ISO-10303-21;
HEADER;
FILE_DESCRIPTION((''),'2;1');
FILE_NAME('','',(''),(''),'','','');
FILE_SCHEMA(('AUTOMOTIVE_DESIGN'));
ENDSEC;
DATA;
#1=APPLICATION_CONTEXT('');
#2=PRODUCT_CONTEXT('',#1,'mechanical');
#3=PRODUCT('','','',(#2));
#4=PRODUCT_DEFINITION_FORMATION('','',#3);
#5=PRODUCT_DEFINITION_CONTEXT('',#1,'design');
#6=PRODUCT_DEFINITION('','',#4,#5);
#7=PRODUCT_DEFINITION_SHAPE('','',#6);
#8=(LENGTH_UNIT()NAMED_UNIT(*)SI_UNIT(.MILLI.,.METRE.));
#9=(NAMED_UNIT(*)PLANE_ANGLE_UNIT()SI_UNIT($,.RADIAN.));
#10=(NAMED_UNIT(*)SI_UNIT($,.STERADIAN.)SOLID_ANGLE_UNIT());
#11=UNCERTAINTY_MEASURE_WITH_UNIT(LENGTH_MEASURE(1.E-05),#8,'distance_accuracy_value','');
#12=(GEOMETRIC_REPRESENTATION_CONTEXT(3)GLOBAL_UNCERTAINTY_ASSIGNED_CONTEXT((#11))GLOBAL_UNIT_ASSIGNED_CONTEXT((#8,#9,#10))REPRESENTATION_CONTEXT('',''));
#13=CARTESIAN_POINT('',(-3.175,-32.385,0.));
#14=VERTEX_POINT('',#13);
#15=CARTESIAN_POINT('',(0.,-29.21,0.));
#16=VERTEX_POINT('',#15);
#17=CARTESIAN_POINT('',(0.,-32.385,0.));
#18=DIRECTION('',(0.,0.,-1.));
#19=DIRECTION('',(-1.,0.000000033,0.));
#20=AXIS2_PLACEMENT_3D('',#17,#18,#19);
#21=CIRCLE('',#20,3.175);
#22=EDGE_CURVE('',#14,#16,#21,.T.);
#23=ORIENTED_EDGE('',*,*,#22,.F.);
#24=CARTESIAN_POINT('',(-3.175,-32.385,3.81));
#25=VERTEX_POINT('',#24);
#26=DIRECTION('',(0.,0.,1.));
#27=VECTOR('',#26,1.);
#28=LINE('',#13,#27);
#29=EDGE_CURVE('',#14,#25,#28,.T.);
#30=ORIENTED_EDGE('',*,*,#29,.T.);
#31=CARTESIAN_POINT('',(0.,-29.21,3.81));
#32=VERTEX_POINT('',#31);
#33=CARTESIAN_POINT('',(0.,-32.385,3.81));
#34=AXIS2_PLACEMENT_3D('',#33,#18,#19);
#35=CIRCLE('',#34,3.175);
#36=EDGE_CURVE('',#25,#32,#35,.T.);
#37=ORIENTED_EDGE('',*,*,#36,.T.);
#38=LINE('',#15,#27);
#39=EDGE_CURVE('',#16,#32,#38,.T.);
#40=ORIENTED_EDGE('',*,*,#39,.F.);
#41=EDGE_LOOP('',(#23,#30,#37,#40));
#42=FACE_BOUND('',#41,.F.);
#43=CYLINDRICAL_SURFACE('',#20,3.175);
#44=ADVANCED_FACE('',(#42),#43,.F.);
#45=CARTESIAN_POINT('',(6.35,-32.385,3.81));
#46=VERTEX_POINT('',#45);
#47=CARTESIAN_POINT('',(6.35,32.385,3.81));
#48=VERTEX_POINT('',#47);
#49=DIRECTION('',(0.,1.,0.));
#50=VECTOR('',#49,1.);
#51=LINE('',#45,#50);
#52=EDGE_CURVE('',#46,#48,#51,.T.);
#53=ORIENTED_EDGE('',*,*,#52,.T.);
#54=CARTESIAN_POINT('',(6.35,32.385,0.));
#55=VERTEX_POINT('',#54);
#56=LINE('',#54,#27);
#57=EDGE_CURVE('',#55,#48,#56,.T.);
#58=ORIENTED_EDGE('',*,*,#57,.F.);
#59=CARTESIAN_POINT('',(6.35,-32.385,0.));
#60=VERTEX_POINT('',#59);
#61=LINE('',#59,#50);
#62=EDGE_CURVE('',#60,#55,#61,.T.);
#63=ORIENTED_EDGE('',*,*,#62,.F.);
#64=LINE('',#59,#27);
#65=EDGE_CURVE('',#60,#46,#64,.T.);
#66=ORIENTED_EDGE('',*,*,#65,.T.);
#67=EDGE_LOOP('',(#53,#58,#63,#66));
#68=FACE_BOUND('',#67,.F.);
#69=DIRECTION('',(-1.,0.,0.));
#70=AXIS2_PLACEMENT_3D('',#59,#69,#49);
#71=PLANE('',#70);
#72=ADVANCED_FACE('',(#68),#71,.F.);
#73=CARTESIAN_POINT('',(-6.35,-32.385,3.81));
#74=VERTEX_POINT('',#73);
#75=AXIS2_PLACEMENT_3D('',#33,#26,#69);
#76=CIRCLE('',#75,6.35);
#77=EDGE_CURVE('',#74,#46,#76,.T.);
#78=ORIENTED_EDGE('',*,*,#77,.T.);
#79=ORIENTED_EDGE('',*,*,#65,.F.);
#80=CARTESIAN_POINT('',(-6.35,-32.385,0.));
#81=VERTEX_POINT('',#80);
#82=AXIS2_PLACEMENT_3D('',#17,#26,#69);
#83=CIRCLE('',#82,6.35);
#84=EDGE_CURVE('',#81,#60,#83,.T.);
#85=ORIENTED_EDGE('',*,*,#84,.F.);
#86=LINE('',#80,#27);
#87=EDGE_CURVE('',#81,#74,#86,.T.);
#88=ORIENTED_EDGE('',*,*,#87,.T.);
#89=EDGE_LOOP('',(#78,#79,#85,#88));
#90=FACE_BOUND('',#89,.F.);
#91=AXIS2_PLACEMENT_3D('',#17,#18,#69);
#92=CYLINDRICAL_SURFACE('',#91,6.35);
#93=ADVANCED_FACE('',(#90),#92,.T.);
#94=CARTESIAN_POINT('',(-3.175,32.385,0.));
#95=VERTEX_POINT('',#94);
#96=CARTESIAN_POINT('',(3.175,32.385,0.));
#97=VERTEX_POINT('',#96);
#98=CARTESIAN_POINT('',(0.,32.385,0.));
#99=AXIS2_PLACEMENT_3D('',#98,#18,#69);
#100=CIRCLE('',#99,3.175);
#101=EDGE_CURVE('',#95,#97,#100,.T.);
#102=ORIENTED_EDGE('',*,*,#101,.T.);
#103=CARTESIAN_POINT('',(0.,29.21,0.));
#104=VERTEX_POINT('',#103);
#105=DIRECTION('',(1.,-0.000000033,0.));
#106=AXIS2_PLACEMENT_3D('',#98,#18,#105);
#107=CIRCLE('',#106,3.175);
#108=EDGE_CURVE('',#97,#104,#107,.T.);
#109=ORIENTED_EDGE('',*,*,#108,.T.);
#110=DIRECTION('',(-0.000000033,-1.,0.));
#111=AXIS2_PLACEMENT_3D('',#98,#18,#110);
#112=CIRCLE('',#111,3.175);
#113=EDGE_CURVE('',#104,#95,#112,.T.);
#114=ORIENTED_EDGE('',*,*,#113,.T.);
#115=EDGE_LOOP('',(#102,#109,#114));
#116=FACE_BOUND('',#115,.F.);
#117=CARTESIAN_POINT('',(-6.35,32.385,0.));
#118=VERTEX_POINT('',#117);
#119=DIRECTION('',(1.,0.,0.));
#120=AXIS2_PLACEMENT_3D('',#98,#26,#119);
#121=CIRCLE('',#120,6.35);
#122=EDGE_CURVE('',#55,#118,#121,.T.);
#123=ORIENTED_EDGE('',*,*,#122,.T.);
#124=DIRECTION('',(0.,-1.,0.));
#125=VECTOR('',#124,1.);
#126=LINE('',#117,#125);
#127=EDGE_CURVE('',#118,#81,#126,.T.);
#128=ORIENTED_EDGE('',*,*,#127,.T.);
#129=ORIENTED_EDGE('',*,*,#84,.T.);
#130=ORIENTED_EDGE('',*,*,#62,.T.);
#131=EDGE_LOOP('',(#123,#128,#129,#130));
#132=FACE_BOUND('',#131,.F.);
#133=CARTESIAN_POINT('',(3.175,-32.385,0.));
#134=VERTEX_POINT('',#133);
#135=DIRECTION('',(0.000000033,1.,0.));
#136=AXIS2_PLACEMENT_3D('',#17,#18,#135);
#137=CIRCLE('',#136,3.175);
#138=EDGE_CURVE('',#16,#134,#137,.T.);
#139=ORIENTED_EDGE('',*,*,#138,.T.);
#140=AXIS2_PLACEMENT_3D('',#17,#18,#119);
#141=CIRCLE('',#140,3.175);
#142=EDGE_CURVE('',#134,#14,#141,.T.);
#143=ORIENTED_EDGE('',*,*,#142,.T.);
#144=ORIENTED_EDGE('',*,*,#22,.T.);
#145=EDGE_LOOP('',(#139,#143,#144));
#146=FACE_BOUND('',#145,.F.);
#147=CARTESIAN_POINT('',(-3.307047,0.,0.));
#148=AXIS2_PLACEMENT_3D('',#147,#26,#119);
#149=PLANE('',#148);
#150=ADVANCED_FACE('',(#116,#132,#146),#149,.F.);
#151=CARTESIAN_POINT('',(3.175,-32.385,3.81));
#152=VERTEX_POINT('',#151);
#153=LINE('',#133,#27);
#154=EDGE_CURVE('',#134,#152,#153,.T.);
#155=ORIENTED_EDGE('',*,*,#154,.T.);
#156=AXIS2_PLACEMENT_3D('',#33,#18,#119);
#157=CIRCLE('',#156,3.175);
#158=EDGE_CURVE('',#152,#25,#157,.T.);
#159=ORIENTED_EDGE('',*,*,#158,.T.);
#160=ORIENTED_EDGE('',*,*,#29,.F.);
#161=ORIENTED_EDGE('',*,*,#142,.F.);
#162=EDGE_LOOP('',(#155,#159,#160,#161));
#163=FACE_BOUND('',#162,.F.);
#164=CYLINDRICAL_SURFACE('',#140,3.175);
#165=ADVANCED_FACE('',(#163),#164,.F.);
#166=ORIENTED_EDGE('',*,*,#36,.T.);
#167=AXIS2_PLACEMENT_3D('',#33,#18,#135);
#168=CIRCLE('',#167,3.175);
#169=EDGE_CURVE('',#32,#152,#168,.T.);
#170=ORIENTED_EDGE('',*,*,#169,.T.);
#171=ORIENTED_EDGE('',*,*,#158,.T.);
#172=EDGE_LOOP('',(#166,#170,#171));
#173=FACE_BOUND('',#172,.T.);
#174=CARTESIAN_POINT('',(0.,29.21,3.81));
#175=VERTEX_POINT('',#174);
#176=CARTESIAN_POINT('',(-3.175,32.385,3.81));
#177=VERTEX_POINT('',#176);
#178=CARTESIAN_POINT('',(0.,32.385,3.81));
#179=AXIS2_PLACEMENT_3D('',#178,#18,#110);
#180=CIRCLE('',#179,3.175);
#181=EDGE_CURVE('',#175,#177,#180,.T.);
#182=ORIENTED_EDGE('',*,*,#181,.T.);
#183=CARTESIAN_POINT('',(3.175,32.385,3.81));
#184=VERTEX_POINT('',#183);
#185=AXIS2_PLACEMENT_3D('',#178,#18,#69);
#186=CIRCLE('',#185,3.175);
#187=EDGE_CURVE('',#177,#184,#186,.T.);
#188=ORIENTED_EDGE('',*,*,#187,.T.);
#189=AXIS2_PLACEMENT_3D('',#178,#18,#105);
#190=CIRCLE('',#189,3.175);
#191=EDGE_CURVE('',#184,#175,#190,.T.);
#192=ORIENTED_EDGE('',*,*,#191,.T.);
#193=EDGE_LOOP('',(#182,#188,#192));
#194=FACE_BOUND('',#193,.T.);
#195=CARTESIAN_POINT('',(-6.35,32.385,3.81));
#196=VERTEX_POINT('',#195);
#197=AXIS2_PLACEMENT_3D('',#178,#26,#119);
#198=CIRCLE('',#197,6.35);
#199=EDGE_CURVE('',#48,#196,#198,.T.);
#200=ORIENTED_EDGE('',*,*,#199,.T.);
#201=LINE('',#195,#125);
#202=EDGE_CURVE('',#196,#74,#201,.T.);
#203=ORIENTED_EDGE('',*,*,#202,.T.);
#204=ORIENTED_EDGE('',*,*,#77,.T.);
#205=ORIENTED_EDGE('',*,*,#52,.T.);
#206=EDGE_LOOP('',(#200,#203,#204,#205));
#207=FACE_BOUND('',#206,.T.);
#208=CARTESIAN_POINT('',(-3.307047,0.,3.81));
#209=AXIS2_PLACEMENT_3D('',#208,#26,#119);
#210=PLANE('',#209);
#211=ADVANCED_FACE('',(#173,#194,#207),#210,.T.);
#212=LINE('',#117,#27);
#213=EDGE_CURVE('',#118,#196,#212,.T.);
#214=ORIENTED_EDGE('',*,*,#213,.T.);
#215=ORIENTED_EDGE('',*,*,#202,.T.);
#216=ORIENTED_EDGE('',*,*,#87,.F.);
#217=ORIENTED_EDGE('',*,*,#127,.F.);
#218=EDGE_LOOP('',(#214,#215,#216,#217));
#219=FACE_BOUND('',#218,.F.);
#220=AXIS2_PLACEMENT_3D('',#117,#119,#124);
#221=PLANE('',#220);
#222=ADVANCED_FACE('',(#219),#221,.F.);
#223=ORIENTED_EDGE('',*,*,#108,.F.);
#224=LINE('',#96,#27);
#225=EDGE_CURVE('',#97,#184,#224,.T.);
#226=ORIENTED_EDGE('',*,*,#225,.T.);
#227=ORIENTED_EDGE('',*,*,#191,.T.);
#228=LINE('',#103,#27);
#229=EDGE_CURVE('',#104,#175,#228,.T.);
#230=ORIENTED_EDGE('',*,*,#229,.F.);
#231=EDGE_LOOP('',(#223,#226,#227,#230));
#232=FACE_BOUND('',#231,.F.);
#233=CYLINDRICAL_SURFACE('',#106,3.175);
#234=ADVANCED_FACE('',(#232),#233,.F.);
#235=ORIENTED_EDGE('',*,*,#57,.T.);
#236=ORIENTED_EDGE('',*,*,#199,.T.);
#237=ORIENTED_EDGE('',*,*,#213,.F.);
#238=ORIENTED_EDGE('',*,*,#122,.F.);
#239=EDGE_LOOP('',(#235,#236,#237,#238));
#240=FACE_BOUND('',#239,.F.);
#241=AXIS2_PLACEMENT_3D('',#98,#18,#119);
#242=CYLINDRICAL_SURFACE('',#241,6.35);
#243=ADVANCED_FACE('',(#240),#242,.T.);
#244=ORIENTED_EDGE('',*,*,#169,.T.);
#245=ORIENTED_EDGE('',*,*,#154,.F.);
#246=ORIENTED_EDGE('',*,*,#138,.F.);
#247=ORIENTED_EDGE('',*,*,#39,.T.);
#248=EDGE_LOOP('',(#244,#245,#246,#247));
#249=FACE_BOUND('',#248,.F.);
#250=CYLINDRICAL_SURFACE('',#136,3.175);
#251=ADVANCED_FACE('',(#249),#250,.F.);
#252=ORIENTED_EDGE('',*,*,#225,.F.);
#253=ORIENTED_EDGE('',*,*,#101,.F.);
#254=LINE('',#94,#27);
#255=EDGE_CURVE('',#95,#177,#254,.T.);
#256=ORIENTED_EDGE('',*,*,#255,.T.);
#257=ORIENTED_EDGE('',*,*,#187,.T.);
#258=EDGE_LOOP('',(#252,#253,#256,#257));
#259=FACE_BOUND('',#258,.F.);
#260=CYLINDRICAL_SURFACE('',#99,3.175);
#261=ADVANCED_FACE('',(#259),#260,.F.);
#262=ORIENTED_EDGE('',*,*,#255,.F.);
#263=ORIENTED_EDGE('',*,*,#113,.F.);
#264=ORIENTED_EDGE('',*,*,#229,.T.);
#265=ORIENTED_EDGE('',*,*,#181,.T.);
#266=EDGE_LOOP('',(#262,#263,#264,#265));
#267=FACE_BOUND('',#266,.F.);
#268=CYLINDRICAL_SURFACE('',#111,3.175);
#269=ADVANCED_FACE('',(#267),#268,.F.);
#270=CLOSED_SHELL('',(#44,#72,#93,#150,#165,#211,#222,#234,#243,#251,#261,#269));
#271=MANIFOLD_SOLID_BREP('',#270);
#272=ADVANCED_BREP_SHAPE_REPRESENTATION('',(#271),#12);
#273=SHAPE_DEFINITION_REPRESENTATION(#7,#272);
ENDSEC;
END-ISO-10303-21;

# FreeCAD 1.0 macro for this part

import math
import FreeCAD as App
import Part
import Sketcher
Q = App.Units.Quantity

doc = App.newDocument("Part")
body = doc.addObject("PartDesign::Body", "Body")

sketch1 = body.newObject("Sketcher::SketchObject", "Sketch")
sketch1.AttachmentSupport = (doc.getObject("XY_Plane"), [""])
sketch1.MapMode = "FlatFace"
sketch1.addGeometry(Part.LineSegment(App.Vector(-6.35, 32.385, 0), App.Vector(-6.35, -32.385, 0)), False)
sketch1.addGeometry(Part.ArcOfCircle(Part.Circle(App.Vector(0, -32.385, 0), App.Vector(0, 0, 1), 6.35), math.radians(180), math.radians(360)), False)
sketch1.addGeometry(Part.LineSegment(App.Vector(6.35, -32.385, 0), App.Vector(6.35, 32.385, 0)), False)
sketch1.addGeometry(Part.ArcOfCircle(Part.Circle(App.Vector(0, 32.385, 0), App.Vector(0, 0, 1), 6.35), math.radians(0), math.radians(180)), False)
sketch1.addGeometry(Part.ArcOfCircle(Part.Circle(App.Vector(0, 32.385, 0), App.Vector(0, 0, 1), 3.175), math.radians(-179.999998), math.radians(-90.000002)), False)
sketch1.addGeometry(Part.ArcOfCircle(Part.Circle(App.Vector(0, 32.385, 0), App.Vector(0, 0, 1), 3.175), math.radians(0), math.radians(180)), False)
sketch1.addGeometry(Part.ArcOfCircle(Part.Circle(App.Vector(0, 32.385, 0), App.Vector(0, 0, 1), 3.175), math.radians(-89.999998), math.radians(-0.000002)), False)
sketch1.addGeometry(Part.ArcOfCircle(Part.Circle(App.Vector(0, -32.385, 0), App.Vector(0, 0, 1), 3.175), math.radians(90.000002), math.radians(179.999998)), False)
sketch1.addGeometry(Part.ArcOfCircle(Part.Circle(App.Vector(0, -32.385, 0), App.Vector(0, 0, 1), 3.175), math.radians(0.000002), math.radians(89.999998)), False)
sketch1.addGeometry(Part.ArcOfCircle(Part.Circle(App.Vector(0, -32.385, 0), App.Vector(0, 0, 1), 3.175), math.radians(180), math.radians(360)), False)
sketch1.addConstraint(Sketcher.Constraint("Tangent", 0, 2, 1, 1))
sketch1.addConstraint(Sketcher.Constraint("Tangent", 1, 2, 2, 1))
sketch1.addConstraint(Sketcher.Constraint("Tangent", 2, 2, 3, 1))
sketch1.addConstraint(Sketcher.Constraint("Tangent", 3, 2, 0, 1))
sketch1.addConstraint(Sketcher.Constraint("Tangent", 4, 1, 5, 2))
sketch1.addConstraint(Sketcher.Constraint("Tangent", 5, 1, 6, 2))
sketch1.addConstraint(Sketcher.Constraint("Tangent", 6, 1, 4, 2))
sketch1.addConstraint(Sketcher.Constraint("Tangent", 7, 1, 8, 2))
sketch1.addConstraint(Sketcher.Constraint("Tangent", 8, 1, 9, 2))
sketch1.addConstraint(Sketcher.Constraint("Tangent", 9, 1, 7, 2))
sketch1.addConstraint(Sketcher.Constraint("Vertical", 0))
sketch1.addConstraint(Sketcher.Constraint("Vertical", 2))
sketch1.addConstraint(Sketcher.Constraint("Coincident", 4, 3, 3, 3))
sketch1.addConstraint(Sketcher.Constraint("Coincident", 7, 3, 1, 3))
sketch1.addConstraint(Sketcher.Constraint("Equal", 6, 7))
sketch1.addConstraint(Sketcher.Constraint("Symmetric", 1, 3, 3, 3, -1, 1))
sketch1.addConstraint(Sketcher.Constraint("PointOnObject", 6, 1, -2))
sketch1.addConstraint(Sketcher.Constraint("PointOnObject", 7, 1, -2))
sketch1.addConstraint(Sketcher.Constraint("Horizontal", 3, 2, 4, 1))
sketch1.addConstraint(Sketcher.Constraint("Horizontal", 4, 1, 5, 1))
sketch1.addConstraint(Sketcher.Constraint("Horizontal", 1, 2, 8, 1))
sketch1.addConstraint(Sketcher.Constraint("Horizontal", 8, 1, 9, 1))
sketch1.addConstraint(Sketcher.Constraint("Radius", 1, Q("0.25 in")))
sketch1.addConstraint(Sketcher.Constraint("Radius", 4, Q("0.125 in")))
sketch1.addConstraint(Sketcher.Constraint("DistanceY", 0, 2, 0, 1, Q("2.55 in")))
pad1 = body.newObject("PartDesign::Pad", "Pad")
pad1.Profile = sketch1
pad1.Length = Q("0.15 in")

doc.recompute()
